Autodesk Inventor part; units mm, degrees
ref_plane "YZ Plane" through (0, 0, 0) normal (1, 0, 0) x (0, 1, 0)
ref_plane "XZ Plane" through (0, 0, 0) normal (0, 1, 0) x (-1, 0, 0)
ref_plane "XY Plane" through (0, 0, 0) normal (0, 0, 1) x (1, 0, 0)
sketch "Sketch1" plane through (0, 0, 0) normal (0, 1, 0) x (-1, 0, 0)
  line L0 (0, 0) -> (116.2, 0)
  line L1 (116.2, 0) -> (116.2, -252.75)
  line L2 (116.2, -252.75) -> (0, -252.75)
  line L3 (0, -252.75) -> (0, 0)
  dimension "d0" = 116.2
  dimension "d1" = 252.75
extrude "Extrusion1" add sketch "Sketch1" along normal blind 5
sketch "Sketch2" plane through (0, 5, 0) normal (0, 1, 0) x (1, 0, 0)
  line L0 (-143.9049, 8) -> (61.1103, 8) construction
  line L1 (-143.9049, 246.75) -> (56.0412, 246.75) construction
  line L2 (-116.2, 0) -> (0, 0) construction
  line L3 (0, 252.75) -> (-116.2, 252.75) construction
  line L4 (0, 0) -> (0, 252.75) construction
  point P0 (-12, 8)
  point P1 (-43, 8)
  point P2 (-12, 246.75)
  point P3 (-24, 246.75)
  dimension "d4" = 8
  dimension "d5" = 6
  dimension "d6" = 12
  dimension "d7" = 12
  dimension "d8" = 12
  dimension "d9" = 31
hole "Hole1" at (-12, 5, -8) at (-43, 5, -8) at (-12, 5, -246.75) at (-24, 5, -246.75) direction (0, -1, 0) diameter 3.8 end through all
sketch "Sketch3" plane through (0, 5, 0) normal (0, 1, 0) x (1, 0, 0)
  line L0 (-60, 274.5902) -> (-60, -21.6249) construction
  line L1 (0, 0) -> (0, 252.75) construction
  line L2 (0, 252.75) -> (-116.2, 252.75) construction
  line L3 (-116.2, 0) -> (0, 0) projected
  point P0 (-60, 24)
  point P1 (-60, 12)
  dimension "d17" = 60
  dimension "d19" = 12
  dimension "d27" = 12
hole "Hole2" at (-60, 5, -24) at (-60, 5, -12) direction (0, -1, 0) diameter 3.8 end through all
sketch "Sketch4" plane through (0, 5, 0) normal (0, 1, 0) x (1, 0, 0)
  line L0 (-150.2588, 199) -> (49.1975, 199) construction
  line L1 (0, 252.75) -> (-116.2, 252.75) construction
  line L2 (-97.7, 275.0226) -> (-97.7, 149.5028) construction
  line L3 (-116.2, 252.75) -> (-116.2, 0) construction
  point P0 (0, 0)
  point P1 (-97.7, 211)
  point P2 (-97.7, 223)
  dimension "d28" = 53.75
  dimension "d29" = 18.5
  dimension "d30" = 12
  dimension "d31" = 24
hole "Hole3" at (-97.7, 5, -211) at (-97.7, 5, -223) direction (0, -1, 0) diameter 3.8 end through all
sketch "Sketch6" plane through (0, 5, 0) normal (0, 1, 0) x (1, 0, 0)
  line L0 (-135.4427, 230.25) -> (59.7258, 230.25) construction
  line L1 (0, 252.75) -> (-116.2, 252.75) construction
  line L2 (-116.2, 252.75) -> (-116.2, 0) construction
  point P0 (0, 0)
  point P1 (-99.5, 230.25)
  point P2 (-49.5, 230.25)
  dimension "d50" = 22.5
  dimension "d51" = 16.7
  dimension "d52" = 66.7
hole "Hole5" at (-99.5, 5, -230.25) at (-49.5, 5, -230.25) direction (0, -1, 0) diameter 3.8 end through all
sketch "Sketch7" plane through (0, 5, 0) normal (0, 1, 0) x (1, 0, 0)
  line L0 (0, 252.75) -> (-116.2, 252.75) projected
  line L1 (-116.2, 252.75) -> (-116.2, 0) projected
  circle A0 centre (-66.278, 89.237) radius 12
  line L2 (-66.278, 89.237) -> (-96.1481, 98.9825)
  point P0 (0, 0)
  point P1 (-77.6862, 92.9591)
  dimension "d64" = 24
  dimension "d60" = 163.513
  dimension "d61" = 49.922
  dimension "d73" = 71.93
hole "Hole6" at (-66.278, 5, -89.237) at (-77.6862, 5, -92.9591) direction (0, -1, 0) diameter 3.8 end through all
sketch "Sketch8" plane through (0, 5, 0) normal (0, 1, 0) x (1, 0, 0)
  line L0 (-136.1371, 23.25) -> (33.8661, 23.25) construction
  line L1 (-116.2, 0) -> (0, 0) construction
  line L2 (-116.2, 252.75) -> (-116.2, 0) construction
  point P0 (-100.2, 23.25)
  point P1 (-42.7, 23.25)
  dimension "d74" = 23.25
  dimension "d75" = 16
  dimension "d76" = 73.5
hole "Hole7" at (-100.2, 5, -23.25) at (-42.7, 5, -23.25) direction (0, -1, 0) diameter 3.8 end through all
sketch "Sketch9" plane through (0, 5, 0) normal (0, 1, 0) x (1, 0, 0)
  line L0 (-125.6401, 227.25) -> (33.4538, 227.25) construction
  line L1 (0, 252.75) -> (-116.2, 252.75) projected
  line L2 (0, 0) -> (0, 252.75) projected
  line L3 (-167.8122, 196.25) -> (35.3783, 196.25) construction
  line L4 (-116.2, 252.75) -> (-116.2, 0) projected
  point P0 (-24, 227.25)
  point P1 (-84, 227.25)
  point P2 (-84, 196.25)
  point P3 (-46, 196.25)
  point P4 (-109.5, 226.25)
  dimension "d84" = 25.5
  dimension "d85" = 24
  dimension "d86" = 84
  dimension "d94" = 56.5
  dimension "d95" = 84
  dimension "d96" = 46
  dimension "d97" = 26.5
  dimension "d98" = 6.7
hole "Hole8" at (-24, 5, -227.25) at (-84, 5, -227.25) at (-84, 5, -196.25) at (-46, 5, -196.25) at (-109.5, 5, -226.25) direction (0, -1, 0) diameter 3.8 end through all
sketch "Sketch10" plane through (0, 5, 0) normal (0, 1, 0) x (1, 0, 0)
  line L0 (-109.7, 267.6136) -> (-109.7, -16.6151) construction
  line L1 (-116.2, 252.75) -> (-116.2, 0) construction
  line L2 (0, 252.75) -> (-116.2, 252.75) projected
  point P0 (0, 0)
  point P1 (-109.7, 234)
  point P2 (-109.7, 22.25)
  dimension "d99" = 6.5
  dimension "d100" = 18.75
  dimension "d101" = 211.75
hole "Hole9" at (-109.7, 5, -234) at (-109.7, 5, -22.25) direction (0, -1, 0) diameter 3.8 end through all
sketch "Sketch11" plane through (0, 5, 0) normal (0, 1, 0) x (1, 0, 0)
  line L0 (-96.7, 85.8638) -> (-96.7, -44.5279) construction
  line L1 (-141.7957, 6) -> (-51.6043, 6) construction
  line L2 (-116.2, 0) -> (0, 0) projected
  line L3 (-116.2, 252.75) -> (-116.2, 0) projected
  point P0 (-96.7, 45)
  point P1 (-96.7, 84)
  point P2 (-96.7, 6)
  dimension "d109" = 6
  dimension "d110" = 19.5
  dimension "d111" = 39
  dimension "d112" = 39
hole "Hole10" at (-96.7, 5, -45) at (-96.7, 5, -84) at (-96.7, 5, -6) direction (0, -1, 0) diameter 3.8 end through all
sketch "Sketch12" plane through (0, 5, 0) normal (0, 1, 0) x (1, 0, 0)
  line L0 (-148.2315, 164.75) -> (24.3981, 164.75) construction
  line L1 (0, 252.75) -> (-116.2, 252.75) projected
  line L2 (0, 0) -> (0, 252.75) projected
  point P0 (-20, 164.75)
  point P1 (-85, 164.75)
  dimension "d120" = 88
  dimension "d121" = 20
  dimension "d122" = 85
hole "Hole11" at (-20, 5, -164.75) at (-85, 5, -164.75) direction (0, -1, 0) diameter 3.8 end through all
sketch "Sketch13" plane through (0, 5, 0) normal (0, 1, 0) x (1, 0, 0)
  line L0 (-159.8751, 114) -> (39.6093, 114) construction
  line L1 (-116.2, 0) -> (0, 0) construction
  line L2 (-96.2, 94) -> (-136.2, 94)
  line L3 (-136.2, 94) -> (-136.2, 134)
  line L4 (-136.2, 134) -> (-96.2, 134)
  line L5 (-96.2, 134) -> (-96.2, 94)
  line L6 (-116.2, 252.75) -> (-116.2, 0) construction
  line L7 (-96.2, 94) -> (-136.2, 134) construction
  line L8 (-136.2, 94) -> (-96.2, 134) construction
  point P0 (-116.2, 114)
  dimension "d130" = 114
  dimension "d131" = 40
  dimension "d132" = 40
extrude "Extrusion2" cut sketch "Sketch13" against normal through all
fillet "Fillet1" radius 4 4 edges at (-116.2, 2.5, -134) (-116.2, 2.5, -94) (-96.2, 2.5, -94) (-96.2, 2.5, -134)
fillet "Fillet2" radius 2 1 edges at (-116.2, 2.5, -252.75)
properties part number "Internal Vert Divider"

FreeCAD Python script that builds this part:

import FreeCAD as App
import Part
import Sketcher
from FreeCAD import Vector
Q = App.Units.Quantity


def edges_at(feature, points):
    """Names of the edges that pass closest to the given points."""
    edges = feature.Shape.Edges
    near = lambda p: min(range(len(edges)), key=lambda i: edges[i].distToShape(Part.Vertex(*p))[0])
    return sorted({f"Edge{near(p) + 1}" for p in points})


def add_polygon(sketch, points):
    """Adds a closed chain of lines whose ends are joined by coincident constraints."""
    first, n = sketch.GeometryCount, len(points)
    for a, b in zip(points, points[1:] + points[:1]):
        sketch.addGeometry(Part.LineSegment(App.Vector(*a, 0), App.Vector(*b, 0)), False)
    for i in range(n):
        sketch.addConstraint(Sketcher.Constraint("Coincident", first + i, 2, first + (i + 1) % n, 1))

doc = App.newDocument("Part")
body = doc.addObject("PartDesign::Body", "Body")

sketch1 = body.newObject("Sketcher::SketchObject", "Sketch")
sketch1.AttachmentSupport = (doc.getObject("XZ_Plane"), [""])
sketch1.MapMode = "FlatFace"
add_polygon(sketch1, [(-116.2, 0), (0, 0), (0, -252.75), (-116.2, -252.75)])
sketch1.addConstraint(Sketcher.Constraint("Horizontal", 0))
sketch1.addConstraint(Sketcher.Constraint("Vertical", 1))
sketch1.addConstraint(Sketcher.Constraint("Horizontal", 2))
sketch1.addConstraint(Sketcher.Constraint("Vertical", 3))
sketch1.addConstraint(Sketcher.Constraint("Coincident", 0, 2, -1, 1))
sketch1.addConstraint(Sketcher.Constraint("DistanceX", 0, 1, 0, 2, Q("116.2 mm")))
sketch1.addConstraint(Sketcher.Constraint("DistanceY", 1, 2, 1, 1, Q("252.75 mm")))
pad1 = body.newObject("PartDesign::Pad", "Pad")
pad1.Profile = sketch1
pad1.Length = 5
pad1.Reversed = True

sketch2 = body.newObject("Sketcher::SketchObject", "Sketch001")
sketch2.AttachmentSupport = (doc.getObject("XZ_Plane"), [""])
sketch2.MapMode = "FlatFace"
sketch2.AttachmentOffset = App.Placement(Vector(0, 0, -5), App.Rotation())
sketch2.addGeometry(Part.Circle(Vector(-12, -8, 0), Vector(0, 0, 1), 1.9), False)
sketch2.addGeometry(Part.Circle(Vector(-43, -8, 0), Vector(0, 0, 1), 1.9), False)
sketch2.addGeometry(Part.Circle(Vector(-12, -246.75, 0), Vector(0, 0, 1), 1.9), False)
sketch2.addGeometry(Part.Circle(Vector(-24, -246.75, 0), Vector(0, 0, 1), 1.9), False)
sketch2.addConstraint(Sketcher.Constraint("Equal", 0, 1))
sketch2.addConstraint(Sketcher.Constraint("Equal", 1, 2))
sketch2.addConstraint(Sketcher.Constraint("Equal", 2, 3))
sketch2.addConstraint(Sketcher.Constraint("Horizontal", 0, 3, 1, 3))
sketch2.addConstraint(Sketcher.Constraint("Horizontal", 2, 3, 3, 3))
sketch2.addConstraint(Sketcher.Constraint("Vertical", 0, 3, 2, 3))
sketch2.addConstraint(Sketcher.Constraint("Diameter", 0, Q("3.8 mm")))
sketch2.addConstraint(Sketcher.Constraint("DistanceX", 0, 3, -1, 1, Q("12 mm")))
sketch2.addConstraint(Sketcher.Constraint("DistanceY", 0, 3, -1, 1, Q("8 mm")))
sketch2.addConstraint(Sketcher.Constraint("DistanceX", 1, 3, -1, 1, Q("43 mm")))
sketch2.addConstraint(Sketcher.Constraint("DistanceX", 3, 3, -1, 1, Q("24 mm")))
sketch2.addConstraint(Sketcher.Constraint("DistanceY", 2, 3, -1, 1, Q("246.75 mm")))
doc.recompute()
hole = body.newObject("PartDesign::Hole", "Hole")
hole.Profile = sketch2
hole.ThreadType = "None"
hole.Diameter = 3.8
hole.DepthType = "ThroughAll"
hole.Reversed = True

sketch3 = body.newObject("Sketcher::SketchObject", "Sketch002")
sketch3.AttachmentSupport = (doc.getObject("XZ_Plane"), [""])
sketch3.MapMode = "FlatFace"
sketch3.AttachmentOffset = App.Placement(Vector(0, 0, -5), App.Rotation())
sketch3.addGeometry(Part.Circle(Vector(-60, -24, 0), Vector(0, 0, 1), 1.9), False)
sketch3.addGeometry(Part.Circle(Vector(-60, -12, 0), Vector(0, 0, 1), 1.9), False)
sketch3.addConstraint(Sketcher.Constraint("Equal", 0, 1))
sketch3.addConstraint(Sketcher.Constraint("Vertical", 0, 3, 1, 3))
sketch3.addConstraint(Sketcher.Constraint("Diameter", 0, Q("3.8 mm")))
sketch3.addConstraint(Sketcher.Constraint("DistanceX", 0, 3, -1, 1, Q("60 mm")))
sketch3.addConstraint(Sketcher.Constraint("DistanceY", 0, 3, -1, 1, Q("24 mm")))
sketch3.addConstraint(Sketcher.Constraint("DistanceY", 1, 3, -1, 1, Q("12 mm")))
doc.recompute()
hole2 = body.newObject("PartDesign::Hole", "Hole001")
hole2.Profile = sketch3
hole2.ThreadType = "None"
hole2.Diameter = 3.8
hole2.DepthType = "ThroughAll"
hole2.Reversed = True

sketch4 = body.newObject("Sketcher::SketchObject", "Sketch003")
sketch4.AttachmentSupport = (doc.getObject("XZ_Plane"), [""])
sketch4.MapMode = "FlatFace"
sketch4.AttachmentOffset = App.Placement(Vector(0, 0, -5), App.Rotation())
sketch4.addGeometry(Part.Circle(Vector(-97.7, -211, 0), Vector(0, 0, 1), 1.9), False)
sketch4.addGeometry(Part.Circle(Vector(-97.7, -223, 0), Vector(0, 0, 1), 1.9), False)
sketch4.addConstraint(Sketcher.Constraint("Equal", 0, 1))
sketch4.addConstraint(Sketcher.Constraint("Vertical", 0, 3, 1, 3))
sketch4.addConstraint(Sketcher.Constraint("Diameter", 0, Q("3.8 mm")))
sketch4.addConstraint(Sketcher.Constraint("DistanceY", 0, 3, -1, 1, Q("211 mm")))
sketch4.addConstraint(Sketcher.Constraint("DistanceY", 1, 3, -1, 1, Q("223 mm")))
sketch4.addConstraint(Sketcher.Constraint("DistanceX", 0, 3, -1, 1, Q("97.7 mm")))
doc.recompute()
hole3 = body.newObject("PartDesign::Hole", "Hole002")
hole3.Profile = sketch4
hole3.ThreadType = "None"
hole3.Diameter = 3.8
hole3.DepthType = "ThroughAll"
hole3.Reversed = True

sketch5 = body.newObject("Sketcher::SketchObject", "Sketch004")
sketch5.AttachmentSupport = (doc.getObject("XZ_Plane"), [""])
sketch5.MapMode = "FlatFace"
sketch5.AttachmentOffset = App.Placement(Vector(0, 0, -5), App.Rotation())
sketch5.addGeometry(Part.Circle(Vector(-99.5, -230.25, 0), Vector(0, 0, 1), 1.9), False)
sketch5.addGeometry(Part.Circle(Vector(-49.5, -230.25, 0), Vector(0, 0, 1), 1.9), False)
sketch5.addConstraint(Sketcher.Constraint("Equal", 0, 1))
sketch5.addConstraint(Sketcher.Constraint("Horizontal", 0, 3, 1, 3))
sketch5.addConstraint(Sketcher.Constraint("Diameter", 0, Q("3.8 mm")))
sketch5.addConstraint(Sketcher.Constraint("DistanceX", 0, 3, 1, 3, Q("50 mm")))
sketch5.addConstraint(Sketcher.Constraint("DistanceX", 0, 3, -1, 1, Q("99.5 mm")))
sketch5.addConstraint(Sketcher.Constraint("DistanceY", 0, 3, -1, 1, Q("230.25 mm")))
doc.recompute()
hole4 = body.newObject("PartDesign::Hole", "Hole003")
hole4.Profile = sketch5
hole4.ThreadType = "None"
hole4.Diameter = 3.8
hole4.DepthType = "ThroughAll"
hole4.Reversed = True

sketch6 = body.newObject("Sketcher::SketchObject", "Sketch005")
sketch6.AttachmentSupport = (doc.getObject("XZ_Plane"), [""])
sketch6.MapMode = "FlatFace"
sketch6.AttachmentOffset = App.Placement(Vector(0, 0, -5), App.Rotation())
sketch6.addGeometry(Part.Circle(Vector(-66.278, -89.237, 0), Vector(0, 0, 1), 1.9), False)
sketch6.addGeometry(Part.Circle(Vector(-77.6862, -92.9591, 0), Vector(0, 0, 1), 1.9), False)
sketch6.addConstraint(Sketcher.Constraint("Equal", 0, 1))
sketch6.addConstraint(Sketcher.Constraint("Diameter", 0, Q("3.8 mm")))
sketch6.addConstraint(Sketcher.Constraint("DistanceX", 0, 3, -1, 1, Q("66.278 mm")))
sketch6.addConstraint(Sketcher.Constraint("DistanceY", 0, 3, -1, 1, Q("89.237 mm")))
sketch6.addConstraint(Sketcher.Constraint("DistanceY", 1, 3, -1, 1, Q("92.959 mm")))
sketch6.addConstraint(Sketcher.Constraint("DistanceX", 1, 3, -1, 1, Q("77.6862 mm")))
doc.recompute()
hole5 = body.newObject("PartDesign::Hole", "Hole004")
hole5.Profile = sketch6
hole5.ThreadType = "None"
hole5.Diameter = 3.8
hole5.DepthType = "ThroughAll"
hole5.Reversed = True

sketch7 = body.newObject("Sketcher::SketchObject", "Sketch006")
sketch7.AttachmentSupport = (doc.getObject("XZ_Plane"), [""])
sketch7.MapMode = "FlatFace"
sketch7.AttachmentOffset = App.Placement(Vector(0, 0, -5), App.Rotation())
sketch7.addGeometry(Part.Circle(Vector(-100.2, -23.25, 0), Vector(0, 0, 1), 1.9), False)
sketch7.addGeometry(Part.Circle(Vector(-42.7, -23.25, 0), Vector(0, 0, 1), 1.9), False)
sketch7.addConstraint(Sketcher.Constraint("Equal", 0, 1))
sketch7.addConstraint(Sketcher.Constraint("Horizontal", 0, 3, 1, 3))
sketch7.addConstraint(Sketcher.Constraint("Diameter", 0, Q("3.8 mm")))
sketch7.addConstraint(Sketcher.Constraint("DistanceX", 0, 3, -1, 1, Q("100.2 mm")))
sketch7.addConstraint(Sketcher.Constraint("DistanceX", 1, 3, -1, 1, Q("42.7 mm")))
sketch7.addConstraint(Sketcher.Constraint("DistanceY", 0, 3, -1, 1, Q("23.25 mm")))
doc.recompute()
hole6 = body.newObject("PartDesign::Hole", "Hole005")
hole6.Profile = sketch7
hole6.ThreadType = "None"
hole6.Diameter = 3.8
hole6.DepthType = "ThroughAll"
hole6.Reversed = True

sketch8 = body.newObject("Sketcher::SketchObject", "Sketch007")
sketch8.AttachmentSupport = (doc.getObject("XZ_Plane"), [""])
sketch8.MapMode = "FlatFace"
sketch8.AttachmentOffset = App.Placement(Vector(0, 0, -5), App.Rotation())
sketch8.addGeometry(Part.Circle(Vector(-24, -227.25, 0), Vector(0, 0, 1), 1.9), False)
sketch8.addGeometry(Part.Circle(Vector(-84, -227.25, 0), Vector(0, 0, 1), 1.9), False)
sketch8.addGeometry(Part.Circle(Vector(-84, -196.25, 0), Vector(0, 0, 1), 1.9), False)
sketch8.addGeometry(Part.Circle(Vector(-46, -196.25, 0), Vector(0, 0, 1), 1.9), False)
sketch8.addGeometry(Part.Circle(Vector(-109.5, -226.25, 0), Vector(0, 0, 1), 1.9), False)
sketch8.addConstraint(Sketcher.Constraint("Equal", 0, 1))
sketch8.addConstraint(Sketcher.Constraint("Equal", 1, 2))
sketch8.addConstraint(Sketcher.Constraint("Equal", 2, 3))
sketch8.addConstraint(Sketcher.Constraint("Equal", 3, 4))
sketch8.addConstraint(Sketcher.Constraint("Horizontal", 0, 3, 1, 3))
sketch8.addConstraint(Sketcher.Constraint("Horizontal", 2, 3, 3, 3))
sketch8.addConstraint(Sketcher.Constraint("Vertical", 1, 3, 2, 3))
sketch8.addConstraint(Sketcher.Constraint("Diameter", 0, Q("3.8 mm")))
sketch8.addConstraint(Sketcher.Constraint("DistanceX", 0, 3, -1, 1, Q("24 mm")))
sketch8.addConstraint(Sketcher.Constraint("DistanceX", 1, 3, -1, 1, Q("84 mm")))
sketch8.addConstraint(Sketcher.Constraint("DistanceX", 3, 3, -1, 1, Q("46 mm")))
sketch8.addConstraint(Sketcher.Constraint("DistanceY", 1, 3, 2, 3, Q("31 mm")))
sketch8.addConstraint(Sketcher.Constraint("DistanceY", 1, 3, 4, 3, Q("1 mm")))
sketch8.addConstraint(Sketcher.Constraint("DistanceX", 4, 3, -1, 1, Q("109.5 mm")))
sketch8.addConstraint(Sketcher.Constraint("DistanceY", 0, 3, -1, 1, Q("227.25 mm")))
doc.recompute()
hole7 = body.newObject("PartDesign::Hole", "Hole006")
hole7.Profile = sketch8
hole7.ThreadType = "None"
hole7.Diameter = 3.8
hole7.DepthType = "ThroughAll"
hole7.Reversed = True

sketch9 = body.newObject("Sketcher::SketchObject", "Sketch008")
sketch9.AttachmentSupport = (doc.getObject("XZ_Plane"), [""])
sketch9.MapMode = "FlatFace"
sketch9.AttachmentOffset = App.Placement(Vector(0, 0, -5), App.Rotation())
sketch9.addGeometry(Part.Circle(Vector(-109.7, -234, 0), Vector(0, 0, 1), 1.9), False)
sketch9.addGeometry(Part.Circle(Vector(-109.7, -22.25, 0), Vector(0, 0, 1), 1.9), False)
sketch9.addConstraint(Sketcher.Constraint("Equal", 0, 1))
sketch9.addConstraint(Sketcher.Constraint("Vertical", 0, 3, 1, 3))
sketch9.addConstraint(Sketcher.Constraint("Diameter", 0, Q("3.8 mm")))
sketch9.addConstraint(Sketcher.Constraint("DistanceY", 0, 3, -1, 1, Q("234 mm")))
sketch9.addConstraint(Sketcher.Constraint("DistanceX", 0, 3, -1, 1, Q("109.7 mm")))
sketch9.addConstraint(Sketcher.Constraint("DistanceY", 1, 3, -1, 1, Q("22.25 mm")))
doc.recompute()
hole8 = body.newObject("PartDesign::Hole", "Hole007")
hole8.Profile = sketch9
hole8.ThreadType = "None"
hole8.Diameter = 3.8
hole8.DepthType = "ThroughAll"
hole8.Reversed = True

sketch10 = body.newObject("Sketcher::SketchObject", "Sketch009")
sketch10.AttachmentSupport = (doc.getObject("XZ_Plane"), [""])
sketch10.MapMode = "FlatFace"
sketch10.AttachmentOffset = App.Placement(Vector(0, 0, -5), App.Rotation())
sketch10.addGeometry(Part.Circle(Vector(-96.7, -45, 0), Vector(0, 0, 1), 1.9), False)
sketch10.addGeometry(Part.Circle(Vector(-96.7, -84, 0), Vector(0, 0, 1), 1.9), False)
sketch10.addGeometry(Part.Circle(Vector(-96.7, -6, 0), Vector(0, 0, 1), 1.9), False)
sketch10.addConstraint(Sketcher.Constraint("Equal", 0, 1))
sketch10.addConstraint(Sketcher.Constraint("Equal", 1, 2))
sketch10.addConstraint(Sketcher.Constraint("Vertical", 0, 3, 1, 3))
sketch10.addConstraint(Sketcher.Constraint("Vertical", 1, 3, 2, 3))
sketch10.addConstraint(Sketcher.Constraint("Diameter", 0, Q("3.8 mm")))
sketch10.addConstraint(Sketcher.Constraint("DistanceY", 0, 3, -1, 1, Q("45 mm")))
sketch10.addConstraint(Sketcher.Constraint("DistanceY", 1, 3, -1, 1, Q("84 mm")))
sketch10.addConstraint(Sketcher.Constraint("DistanceY", 2, 3, -1, 1, Q("6 mm")))
sketch10.addConstraint(Sketcher.Constraint("DistanceX", 0, 3, -1, 1, Q("96.7 mm")))
doc.recompute()
hole9 = body.newObject("PartDesign::Hole", "Hole008")
hole9.Profile = sketch10
hole9.ThreadType = "None"
hole9.Diameter = 3.8
hole9.DepthType = "ThroughAll"
hole9.Reversed = True

sketch11 = body.newObject("Sketcher::SketchObject", "Sketch010")
sketch11.AttachmentSupport = (doc.getObject("XZ_Plane"), [""])
sketch11.MapMode = "FlatFace"
sketch11.AttachmentOffset = App.Placement(Vector(0, 0, -5), App.Rotation())
sketch11.addGeometry(Part.Circle(Vector(-20, -164.75, 0), Vector(0, 0, 1), 1.9), False)
sketch11.addGeometry(Part.Circle(Vector(-85, -164.75, 0), Vector(0, 0, 1), 1.9), False)
sketch11.addConstraint(Sketcher.Constraint("Equal", 0, 1))
sketch11.addConstraint(Sketcher.Constraint("Horizontal", 0, 3, 1, 3))
sketch11.addConstraint(Sketcher.Constraint("Diameter", 0, Q("3.8 mm")))
sketch11.addConstraint(Sketcher.Constraint("DistanceX", 0, 3, -1, 1, Q("20 mm")))
sketch11.addConstraint(Sketcher.Constraint("DistanceX", 1, 3, -1, 1, Q("85 mm")))
sketch11.addConstraint(Sketcher.Constraint("DistanceY", 0, 3, -1, 1, Q("164.75 mm")))
doc.recompute()
hole10 = body.newObject("PartDesign::Hole", "Hole009")
hole10.Profile = sketch11
hole10.ThreadType = "None"
hole10.Diameter = 3.8
hole10.DepthType = "ThroughAll"
hole10.Reversed = True

sketch12 = body.newObject("Sketcher::SketchObject", "Sketch011")
sketch12.AttachmentSupport = (doc.getObject("XZ_Plane"), [""])
sketch12.MapMode = "FlatFace"
sketch12.AttachmentOffset = App.Placement(Vector(0, 0, -5), App.Rotation())
add_polygon(sketch12, [(-136.2, -94), (-96.2, -94), (-96.2, -134), (-136.2, -134)])
sketch12.addConstraint(Sketcher.Constraint("Horizontal", 0))
sketch12.addConstraint(Sketcher.Constraint("Vertical", 1))
sketch12.addConstraint(Sketcher.Constraint("Horizontal", 2))
sketch12.addConstraint(Sketcher.Constraint("Vertical", 3))
sketch12.addConstraint(Sketcher.Constraint("Equal", 2, 1))
sketch12.addConstraint(Sketcher.Constraint("DistanceX", 0, 1, 0, 2, Q("40 mm")))
sketch12.addConstraint(Sketcher.Constraint("DistanceY", 0, 2, -1, 1, Q("94 mm")))
sketch12.addConstraint(Sketcher.Constraint("DistanceX", 0, 2, -1, 1, Q("96.2 mm")))
pocket1 = body.newObject("PartDesign::Pocket", "Pocket")
pocket1.Profile = sketch12
pocket1.Type = "ThroughAll"
pocket1.Reversed = True
doc.recompute()

fillet = body.newObject("PartDesign::Fillet", "Fillet")
fillet.Base = (pocket1, edges_at(pocket1, [
    (-116.2, 2.5, -134),
    (-116.2, 2.5, -94),
    (-96.2, 2.5, -94),
    (-96.2, 2.5, -134),
]))
fillet.Radius = 4
doc.recompute()

fillet2 = body.newObject("PartDesign::Fillet", "Fillet001")
fillet2.Base = (fillet, edges_at(fillet, [(-116.2, 2.5, -252.75)]))
fillet2.Radius = 2

doc.recompute()
